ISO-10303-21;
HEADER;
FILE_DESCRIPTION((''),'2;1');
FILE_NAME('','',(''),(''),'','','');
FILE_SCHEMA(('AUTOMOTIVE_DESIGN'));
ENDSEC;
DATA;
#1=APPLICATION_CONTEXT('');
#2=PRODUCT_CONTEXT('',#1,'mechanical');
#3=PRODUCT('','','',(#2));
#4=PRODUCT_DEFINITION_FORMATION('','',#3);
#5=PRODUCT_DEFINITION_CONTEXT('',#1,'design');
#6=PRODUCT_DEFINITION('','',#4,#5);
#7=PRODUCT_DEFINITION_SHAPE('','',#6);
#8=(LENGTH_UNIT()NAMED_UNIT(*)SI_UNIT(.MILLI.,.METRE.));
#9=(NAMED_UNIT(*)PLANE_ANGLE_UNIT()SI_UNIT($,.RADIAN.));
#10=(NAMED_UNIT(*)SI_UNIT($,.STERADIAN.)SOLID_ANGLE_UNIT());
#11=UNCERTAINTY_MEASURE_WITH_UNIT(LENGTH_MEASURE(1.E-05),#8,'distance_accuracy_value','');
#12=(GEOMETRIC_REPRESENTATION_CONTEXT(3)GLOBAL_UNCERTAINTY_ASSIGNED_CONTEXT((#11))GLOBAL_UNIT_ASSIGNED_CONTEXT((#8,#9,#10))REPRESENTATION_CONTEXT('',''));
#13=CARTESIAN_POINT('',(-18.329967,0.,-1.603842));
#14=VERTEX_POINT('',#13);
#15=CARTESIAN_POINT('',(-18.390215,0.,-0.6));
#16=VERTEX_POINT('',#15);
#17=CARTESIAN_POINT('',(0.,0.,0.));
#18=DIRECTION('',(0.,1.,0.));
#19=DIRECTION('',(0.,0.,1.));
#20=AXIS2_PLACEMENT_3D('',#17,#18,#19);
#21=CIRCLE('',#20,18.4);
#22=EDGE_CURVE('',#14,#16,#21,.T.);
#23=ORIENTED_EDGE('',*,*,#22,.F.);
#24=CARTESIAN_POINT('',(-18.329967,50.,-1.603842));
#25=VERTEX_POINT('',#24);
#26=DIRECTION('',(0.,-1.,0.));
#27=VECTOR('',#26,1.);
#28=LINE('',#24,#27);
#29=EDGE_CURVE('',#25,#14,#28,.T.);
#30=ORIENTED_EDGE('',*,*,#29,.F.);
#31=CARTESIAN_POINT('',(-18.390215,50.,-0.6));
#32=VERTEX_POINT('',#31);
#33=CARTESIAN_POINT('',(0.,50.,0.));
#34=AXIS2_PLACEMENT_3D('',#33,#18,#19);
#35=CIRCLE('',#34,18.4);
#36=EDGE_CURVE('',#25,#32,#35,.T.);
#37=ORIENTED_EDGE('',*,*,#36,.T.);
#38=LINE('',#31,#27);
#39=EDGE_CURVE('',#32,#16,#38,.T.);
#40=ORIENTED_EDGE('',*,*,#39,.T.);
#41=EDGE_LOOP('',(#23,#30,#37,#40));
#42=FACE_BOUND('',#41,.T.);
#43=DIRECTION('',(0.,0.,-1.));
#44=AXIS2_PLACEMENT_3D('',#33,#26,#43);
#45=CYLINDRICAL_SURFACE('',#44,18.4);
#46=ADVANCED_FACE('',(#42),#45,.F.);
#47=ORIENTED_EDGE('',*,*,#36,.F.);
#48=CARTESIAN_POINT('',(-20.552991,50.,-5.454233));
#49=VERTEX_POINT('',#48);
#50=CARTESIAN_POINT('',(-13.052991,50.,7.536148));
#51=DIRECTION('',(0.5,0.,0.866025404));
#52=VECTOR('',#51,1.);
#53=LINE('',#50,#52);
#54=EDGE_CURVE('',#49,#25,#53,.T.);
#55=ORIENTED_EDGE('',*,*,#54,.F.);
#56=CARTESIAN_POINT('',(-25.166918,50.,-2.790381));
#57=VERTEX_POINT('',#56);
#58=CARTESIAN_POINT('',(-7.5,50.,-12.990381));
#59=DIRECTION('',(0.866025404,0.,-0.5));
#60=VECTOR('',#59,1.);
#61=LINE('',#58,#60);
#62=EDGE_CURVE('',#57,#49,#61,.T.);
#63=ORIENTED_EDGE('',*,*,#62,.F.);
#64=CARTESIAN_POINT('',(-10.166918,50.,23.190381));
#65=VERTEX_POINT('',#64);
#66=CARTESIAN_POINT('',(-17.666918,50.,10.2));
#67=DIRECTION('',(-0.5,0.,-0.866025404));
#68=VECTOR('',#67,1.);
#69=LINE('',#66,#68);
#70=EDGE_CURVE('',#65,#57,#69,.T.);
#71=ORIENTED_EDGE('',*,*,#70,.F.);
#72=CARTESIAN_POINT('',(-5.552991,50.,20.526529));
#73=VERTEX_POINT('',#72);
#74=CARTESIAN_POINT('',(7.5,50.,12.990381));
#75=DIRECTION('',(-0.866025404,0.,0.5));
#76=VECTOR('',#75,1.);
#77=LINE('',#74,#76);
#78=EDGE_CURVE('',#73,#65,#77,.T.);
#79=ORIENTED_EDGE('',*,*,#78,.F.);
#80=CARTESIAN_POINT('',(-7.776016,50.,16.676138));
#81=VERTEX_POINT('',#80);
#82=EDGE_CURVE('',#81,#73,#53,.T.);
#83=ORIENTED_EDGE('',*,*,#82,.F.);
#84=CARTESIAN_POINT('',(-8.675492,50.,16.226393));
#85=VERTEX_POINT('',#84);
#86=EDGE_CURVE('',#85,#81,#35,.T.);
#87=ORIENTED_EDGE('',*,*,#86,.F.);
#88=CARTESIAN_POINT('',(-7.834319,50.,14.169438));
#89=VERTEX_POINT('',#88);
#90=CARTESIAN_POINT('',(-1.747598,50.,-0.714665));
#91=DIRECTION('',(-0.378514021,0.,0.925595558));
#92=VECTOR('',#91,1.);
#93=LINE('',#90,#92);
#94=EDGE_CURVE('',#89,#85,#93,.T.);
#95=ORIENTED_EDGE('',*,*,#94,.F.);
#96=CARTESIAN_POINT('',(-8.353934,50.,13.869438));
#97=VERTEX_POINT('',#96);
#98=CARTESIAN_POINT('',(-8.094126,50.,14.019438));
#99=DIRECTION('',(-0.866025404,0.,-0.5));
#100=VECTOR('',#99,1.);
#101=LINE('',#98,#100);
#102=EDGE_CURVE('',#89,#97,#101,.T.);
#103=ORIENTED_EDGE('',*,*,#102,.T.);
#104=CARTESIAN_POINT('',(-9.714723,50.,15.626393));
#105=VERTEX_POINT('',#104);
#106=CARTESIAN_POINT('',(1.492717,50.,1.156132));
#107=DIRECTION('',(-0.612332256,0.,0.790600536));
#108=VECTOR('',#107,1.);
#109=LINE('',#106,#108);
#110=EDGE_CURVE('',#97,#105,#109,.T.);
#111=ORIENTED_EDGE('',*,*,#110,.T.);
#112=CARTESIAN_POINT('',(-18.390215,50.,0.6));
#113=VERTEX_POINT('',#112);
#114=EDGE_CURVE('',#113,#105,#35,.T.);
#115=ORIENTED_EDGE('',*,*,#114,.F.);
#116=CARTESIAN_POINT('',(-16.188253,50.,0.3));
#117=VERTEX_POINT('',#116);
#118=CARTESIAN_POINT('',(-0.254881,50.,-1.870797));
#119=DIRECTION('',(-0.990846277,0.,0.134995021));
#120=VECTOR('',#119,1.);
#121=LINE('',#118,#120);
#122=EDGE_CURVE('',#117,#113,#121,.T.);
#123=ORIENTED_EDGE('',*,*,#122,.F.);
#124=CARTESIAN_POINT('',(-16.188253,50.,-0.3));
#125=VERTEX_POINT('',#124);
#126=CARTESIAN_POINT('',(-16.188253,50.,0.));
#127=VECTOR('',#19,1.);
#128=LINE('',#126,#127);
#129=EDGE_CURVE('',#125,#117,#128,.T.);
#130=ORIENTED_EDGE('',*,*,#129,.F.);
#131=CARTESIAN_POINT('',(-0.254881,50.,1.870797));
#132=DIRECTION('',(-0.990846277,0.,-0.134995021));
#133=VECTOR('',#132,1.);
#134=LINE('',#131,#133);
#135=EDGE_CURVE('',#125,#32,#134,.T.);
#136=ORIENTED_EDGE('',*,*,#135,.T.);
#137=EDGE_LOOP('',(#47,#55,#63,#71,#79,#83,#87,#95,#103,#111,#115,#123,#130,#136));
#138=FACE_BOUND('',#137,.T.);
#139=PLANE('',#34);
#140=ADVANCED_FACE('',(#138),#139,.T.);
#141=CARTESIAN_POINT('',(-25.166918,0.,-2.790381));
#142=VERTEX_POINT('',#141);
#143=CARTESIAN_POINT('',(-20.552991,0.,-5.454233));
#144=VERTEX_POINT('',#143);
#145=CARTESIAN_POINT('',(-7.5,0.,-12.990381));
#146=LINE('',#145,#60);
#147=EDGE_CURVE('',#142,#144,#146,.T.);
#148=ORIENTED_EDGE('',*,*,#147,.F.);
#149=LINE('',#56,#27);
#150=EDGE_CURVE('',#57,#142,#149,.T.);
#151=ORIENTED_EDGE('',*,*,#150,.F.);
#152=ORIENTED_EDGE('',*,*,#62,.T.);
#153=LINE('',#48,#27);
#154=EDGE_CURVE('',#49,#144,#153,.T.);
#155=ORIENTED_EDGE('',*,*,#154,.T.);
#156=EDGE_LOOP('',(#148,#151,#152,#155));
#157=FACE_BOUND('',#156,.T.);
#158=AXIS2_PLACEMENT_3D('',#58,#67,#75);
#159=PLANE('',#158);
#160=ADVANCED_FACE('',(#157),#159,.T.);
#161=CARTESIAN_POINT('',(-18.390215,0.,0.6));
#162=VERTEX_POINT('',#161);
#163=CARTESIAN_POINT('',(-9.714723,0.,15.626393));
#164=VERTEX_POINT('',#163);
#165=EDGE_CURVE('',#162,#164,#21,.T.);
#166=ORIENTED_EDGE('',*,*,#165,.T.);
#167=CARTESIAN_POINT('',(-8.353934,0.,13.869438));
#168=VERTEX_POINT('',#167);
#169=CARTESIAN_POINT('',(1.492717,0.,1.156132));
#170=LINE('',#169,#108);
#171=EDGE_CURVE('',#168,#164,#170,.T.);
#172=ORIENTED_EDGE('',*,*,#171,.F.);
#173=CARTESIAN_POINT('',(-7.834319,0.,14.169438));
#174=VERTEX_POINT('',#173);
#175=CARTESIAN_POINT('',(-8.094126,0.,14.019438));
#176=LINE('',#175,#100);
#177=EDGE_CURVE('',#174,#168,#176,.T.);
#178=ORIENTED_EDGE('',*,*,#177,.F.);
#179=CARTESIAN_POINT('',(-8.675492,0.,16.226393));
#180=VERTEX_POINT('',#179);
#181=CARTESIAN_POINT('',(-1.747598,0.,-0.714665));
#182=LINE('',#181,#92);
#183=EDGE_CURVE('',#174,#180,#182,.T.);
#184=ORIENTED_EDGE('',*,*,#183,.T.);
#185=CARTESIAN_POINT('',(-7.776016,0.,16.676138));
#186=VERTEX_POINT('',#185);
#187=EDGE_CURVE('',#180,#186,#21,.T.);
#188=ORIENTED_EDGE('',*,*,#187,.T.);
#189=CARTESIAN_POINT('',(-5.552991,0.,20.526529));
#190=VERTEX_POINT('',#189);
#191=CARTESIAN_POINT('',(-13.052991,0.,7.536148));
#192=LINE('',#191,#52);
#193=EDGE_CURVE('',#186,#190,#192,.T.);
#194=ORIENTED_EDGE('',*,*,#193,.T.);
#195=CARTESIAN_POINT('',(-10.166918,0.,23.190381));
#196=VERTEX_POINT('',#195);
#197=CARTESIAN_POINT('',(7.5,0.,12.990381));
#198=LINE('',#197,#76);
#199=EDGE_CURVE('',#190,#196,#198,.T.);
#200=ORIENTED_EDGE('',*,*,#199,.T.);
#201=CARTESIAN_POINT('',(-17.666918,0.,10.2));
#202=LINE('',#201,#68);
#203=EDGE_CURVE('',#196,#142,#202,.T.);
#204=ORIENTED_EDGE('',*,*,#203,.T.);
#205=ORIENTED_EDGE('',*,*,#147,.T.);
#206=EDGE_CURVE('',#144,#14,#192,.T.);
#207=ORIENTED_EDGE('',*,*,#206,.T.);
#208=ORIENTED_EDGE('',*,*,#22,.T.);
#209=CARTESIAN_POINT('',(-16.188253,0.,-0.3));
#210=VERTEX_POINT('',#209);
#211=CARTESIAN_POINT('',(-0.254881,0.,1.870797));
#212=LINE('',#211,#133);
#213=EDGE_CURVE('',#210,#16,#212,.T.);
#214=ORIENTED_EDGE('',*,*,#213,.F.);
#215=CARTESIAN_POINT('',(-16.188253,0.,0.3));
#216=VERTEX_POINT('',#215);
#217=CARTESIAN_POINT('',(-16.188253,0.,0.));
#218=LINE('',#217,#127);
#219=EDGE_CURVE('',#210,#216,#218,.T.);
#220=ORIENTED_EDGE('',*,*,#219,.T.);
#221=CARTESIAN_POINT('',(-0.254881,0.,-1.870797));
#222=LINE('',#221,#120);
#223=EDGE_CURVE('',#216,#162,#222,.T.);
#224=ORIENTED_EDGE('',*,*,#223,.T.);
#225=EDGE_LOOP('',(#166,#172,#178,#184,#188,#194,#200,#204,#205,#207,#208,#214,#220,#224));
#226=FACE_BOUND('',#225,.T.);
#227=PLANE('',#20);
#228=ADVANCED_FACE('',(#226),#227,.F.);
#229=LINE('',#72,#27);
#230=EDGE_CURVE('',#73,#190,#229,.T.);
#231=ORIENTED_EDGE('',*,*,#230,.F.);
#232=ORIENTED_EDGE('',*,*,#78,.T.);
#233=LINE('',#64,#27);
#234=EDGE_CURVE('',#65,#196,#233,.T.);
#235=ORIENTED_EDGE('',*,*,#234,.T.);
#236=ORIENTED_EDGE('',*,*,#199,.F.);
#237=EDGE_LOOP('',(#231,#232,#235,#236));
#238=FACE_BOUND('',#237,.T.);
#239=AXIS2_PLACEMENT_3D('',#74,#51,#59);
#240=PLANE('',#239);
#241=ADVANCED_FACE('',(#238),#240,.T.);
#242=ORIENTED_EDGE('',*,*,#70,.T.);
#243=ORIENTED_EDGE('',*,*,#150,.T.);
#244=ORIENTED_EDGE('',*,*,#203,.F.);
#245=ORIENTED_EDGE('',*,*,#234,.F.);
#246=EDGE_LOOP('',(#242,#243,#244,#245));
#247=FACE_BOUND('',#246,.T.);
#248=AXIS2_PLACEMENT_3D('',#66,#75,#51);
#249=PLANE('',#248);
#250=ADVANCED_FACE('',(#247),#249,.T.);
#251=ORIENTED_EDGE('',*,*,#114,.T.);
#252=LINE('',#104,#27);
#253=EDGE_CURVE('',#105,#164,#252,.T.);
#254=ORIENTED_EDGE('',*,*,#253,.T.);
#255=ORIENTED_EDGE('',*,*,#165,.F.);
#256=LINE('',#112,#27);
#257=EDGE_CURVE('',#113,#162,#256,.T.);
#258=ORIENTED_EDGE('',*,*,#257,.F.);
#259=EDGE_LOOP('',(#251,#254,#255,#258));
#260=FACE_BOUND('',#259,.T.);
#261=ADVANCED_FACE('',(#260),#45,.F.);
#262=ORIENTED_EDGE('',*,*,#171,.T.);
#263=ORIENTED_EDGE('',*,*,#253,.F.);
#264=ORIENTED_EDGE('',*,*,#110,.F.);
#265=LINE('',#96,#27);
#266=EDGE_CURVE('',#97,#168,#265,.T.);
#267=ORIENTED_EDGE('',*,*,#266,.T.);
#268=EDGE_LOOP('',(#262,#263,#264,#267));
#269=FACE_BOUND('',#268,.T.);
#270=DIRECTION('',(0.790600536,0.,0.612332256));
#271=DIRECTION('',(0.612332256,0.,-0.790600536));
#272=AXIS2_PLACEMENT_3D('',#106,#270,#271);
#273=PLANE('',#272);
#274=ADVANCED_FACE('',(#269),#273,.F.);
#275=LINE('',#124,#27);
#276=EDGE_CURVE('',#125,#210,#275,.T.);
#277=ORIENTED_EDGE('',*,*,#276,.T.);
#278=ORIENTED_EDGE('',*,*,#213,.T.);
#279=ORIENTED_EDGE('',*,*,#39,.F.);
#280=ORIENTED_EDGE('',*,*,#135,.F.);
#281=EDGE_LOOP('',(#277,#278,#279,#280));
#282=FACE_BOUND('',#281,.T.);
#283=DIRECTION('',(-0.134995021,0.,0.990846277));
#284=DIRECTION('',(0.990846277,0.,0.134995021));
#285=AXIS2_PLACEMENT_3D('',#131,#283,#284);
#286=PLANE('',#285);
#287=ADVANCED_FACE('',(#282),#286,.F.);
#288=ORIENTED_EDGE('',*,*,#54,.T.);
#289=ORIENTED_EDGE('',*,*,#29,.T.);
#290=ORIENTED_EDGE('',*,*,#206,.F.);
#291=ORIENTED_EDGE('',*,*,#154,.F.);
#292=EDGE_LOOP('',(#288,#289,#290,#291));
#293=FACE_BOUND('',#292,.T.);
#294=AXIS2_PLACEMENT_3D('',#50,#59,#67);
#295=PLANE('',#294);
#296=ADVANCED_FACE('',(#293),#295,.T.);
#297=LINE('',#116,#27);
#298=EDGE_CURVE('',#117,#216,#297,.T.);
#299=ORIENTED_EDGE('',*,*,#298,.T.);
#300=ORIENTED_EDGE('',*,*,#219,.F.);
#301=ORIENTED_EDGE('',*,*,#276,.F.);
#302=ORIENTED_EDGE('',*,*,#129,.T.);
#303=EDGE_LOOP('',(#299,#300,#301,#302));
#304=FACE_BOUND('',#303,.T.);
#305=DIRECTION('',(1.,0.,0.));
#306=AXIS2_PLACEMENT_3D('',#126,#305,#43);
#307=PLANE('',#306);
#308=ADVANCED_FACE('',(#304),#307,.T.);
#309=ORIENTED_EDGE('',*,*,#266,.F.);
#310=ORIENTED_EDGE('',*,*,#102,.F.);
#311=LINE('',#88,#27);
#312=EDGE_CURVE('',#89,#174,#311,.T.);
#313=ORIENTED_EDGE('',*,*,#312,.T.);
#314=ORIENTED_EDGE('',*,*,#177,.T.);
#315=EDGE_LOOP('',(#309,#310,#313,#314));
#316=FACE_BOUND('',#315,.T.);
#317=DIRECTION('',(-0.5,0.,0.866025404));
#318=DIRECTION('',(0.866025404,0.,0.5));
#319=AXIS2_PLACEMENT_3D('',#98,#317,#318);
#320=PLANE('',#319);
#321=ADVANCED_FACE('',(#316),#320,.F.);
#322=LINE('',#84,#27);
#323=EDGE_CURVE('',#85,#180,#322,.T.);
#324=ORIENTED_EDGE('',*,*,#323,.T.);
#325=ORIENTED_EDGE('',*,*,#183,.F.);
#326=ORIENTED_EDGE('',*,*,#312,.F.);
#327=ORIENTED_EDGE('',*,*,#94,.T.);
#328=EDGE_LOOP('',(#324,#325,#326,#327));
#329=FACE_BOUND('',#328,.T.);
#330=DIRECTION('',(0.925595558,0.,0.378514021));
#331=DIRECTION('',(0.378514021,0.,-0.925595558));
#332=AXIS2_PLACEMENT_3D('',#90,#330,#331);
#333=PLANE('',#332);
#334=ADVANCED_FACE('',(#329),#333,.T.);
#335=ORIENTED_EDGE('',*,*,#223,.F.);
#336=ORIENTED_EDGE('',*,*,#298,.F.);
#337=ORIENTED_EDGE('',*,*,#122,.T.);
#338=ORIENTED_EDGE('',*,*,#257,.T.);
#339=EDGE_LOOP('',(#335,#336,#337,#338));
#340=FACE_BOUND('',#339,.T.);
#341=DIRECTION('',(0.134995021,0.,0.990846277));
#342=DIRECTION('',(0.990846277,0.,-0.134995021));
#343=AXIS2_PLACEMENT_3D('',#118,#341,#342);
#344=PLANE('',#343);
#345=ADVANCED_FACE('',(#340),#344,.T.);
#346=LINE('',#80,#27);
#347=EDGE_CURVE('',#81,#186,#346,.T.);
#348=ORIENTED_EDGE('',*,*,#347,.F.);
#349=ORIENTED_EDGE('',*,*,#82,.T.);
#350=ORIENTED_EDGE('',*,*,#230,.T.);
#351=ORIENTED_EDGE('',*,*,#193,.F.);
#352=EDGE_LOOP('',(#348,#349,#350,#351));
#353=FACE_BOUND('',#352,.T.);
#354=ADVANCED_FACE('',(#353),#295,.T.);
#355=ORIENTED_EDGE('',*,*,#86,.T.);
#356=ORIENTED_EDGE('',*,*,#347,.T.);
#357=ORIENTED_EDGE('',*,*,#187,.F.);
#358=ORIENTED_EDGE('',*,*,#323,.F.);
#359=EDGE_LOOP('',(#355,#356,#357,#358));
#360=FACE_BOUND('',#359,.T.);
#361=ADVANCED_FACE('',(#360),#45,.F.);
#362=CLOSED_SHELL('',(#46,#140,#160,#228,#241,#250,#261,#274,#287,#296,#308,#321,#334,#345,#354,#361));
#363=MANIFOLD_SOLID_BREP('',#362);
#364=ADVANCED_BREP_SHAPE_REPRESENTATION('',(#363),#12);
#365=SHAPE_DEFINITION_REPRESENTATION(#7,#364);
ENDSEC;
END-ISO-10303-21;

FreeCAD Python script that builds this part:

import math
import FreeCAD as App
import Part
import Sketcher
from FreeCAD import Vector
Q = App.Units.Quantity

doc = App.newDocument("Part")
body = doc.addObject("PartDesign::Body", "Body")

# Sketch on XZ plane
sketch1 = body.newObject("Sketcher::SketchObject", "Sketch")
sketch1.AttachmentSupport = (doc.getObject("XZ_Plane"), [""])
sketch1.MapMode = "FlatFace"
sketch1.addGeometry([
    Part.LineSegment(Vector(-16.2, 0.3, 0), Vector(-16.2, -0.3, 0)),  # 0
    Part.LineSegment(Vector(-16.2, -0.3, 0), Vector(-18.4, -0.6, 0)),  # 1
    Part.ArcOfCircle(Part.Circle(Vector(0, 0, 0), Vector(0, 0, 1), 18.4), math.radians(-178.13), math.radians(-175)),  # 2
    Part.LineSegment(Vector(-18.3, -1.6, 0), Vector(-20.6, -5.5, 0)),  # 3
    Part.LineSegment(Vector(-20.6, -5.5, 0), Vector(-25.2, -2.8, 0)),  # 4
    Part.LineSegment(Vector(-25.2, -2.8, 0), Vector(-10.2, 23.2, 0)),  # 5
    Part.LineSegment(Vector(-10.2, 23.2, 0), Vector(-5.6, 20.5, 0)),  # 6
    Part.LineSegment(Vector(-5.6, 20.5, 0), Vector(-7.8, 16.7, 0)),  # 7
    Part.ArcOfCircle(Part.Circle(Vector(0, 0, 0), Vector(0, 0, 1), 18.4), math.radians(115), math.radians(118.13)),  # 8
    Part.LineSegment(Vector(-8.7, 16.2, 0), Vector(-7.8, 14.2, 0)),  # 9
    Part.LineSegment(Vector(-7.8, 14.2, 0), Vector(-8.4, 13.9, 0)),  # 10
    Part.LineSegment(Vector(-8.4, 13.9, 0), Vector(-9.7, 15.6, 0)),  # 11
    Part.ArcOfCircle(Part.Circle(Vector(0, 0, 0), Vector(0, 0, 1), 18.4), math.radians(122), math.radians(178)),  # 12
    Part.LineSegment(Vector(-18.4, 0.6, 0), Vector(-16.2, 0.3, 0)),  # 13
], False)
sketch1.addConstraint([
    Sketcher.Constraint("Coincident", 0, 2, 1, 1),
    Sketcher.Constraint("Coincident", 1, 2, 2, 1),
    Sketcher.Constraint("Coincident", 2, 2, 3, 1),
    Sketcher.Constraint("Coincident", 3, 2, 4, 1),
    Sketcher.Constraint("Coincident", 4, 2, 5, 1),
    Sketcher.Constraint("Coincident", 5, 2, 6, 1),
    Sketcher.Constraint("Coincident", 6, 2, 7, 1),
    Sketcher.Constraint("Coincident", 7, 2, 8, 1),
    Sketcher.Constraint("Coincident", 8, 2, 9, 1),
    Sketcher.Constraint("Coincident", 9, 2, 10, 1),
    Sketcher.Constraint("Coincident", 10, 2, 11, 1),
    Sketcher.Constraint("Coincident", 11, 2, 12, 1),
    Sketcher.Constraint("Coincident", 12, 2, 13, 1),
    Sketcher.Constraint("Coincident", 13, 2, 0, 1),
    Sketcher.Constraint("Vertical", 0),
    Sketcher.Constraint("Coincident", 2, 3, -1, 1),
    Sketcher.Constraint("Coincident", 8, 3, -1, 1),
    Sketcher.Constraint("Coincident", 12, 3, -1, 1),
    Sketcher.Constraint("Equal", 2, 8),
    Sketcher.Constraint("Equal", 8, 12),
    Sketcher.Constraint("Perpendicular", 3, 4),
    Sketcher.Constraint("Perpendicular", 4, 5),
    Sketcher.Constraint("Perpendicular", 5, 6),
    Sketcher.Constraint("Perpendicular", 6, 7),
    Sketcher.Constraint("Vertical", 1, 2, 12, 2),
    Sketcher.Constraint("Equal", 4, 6),
    Sketcher.Constraint("Equal", 3, 7),
    Sketcher.Constraint("Equal", 1, 9),
    Sketcher.Constraint("Equal", 9, 11),
    Sketcher.Constraint("Equal", 11, 13),
    Sketcher.Constraint("Radius", 2, 18.4),
    Sketcher.Constraint("Angle", 3, Q("-120 deg")),
    Sketcher.Constraint("Angle", 10, Q("-150 deg")),
    Sketcher.Constraint("Distance", 5, 30.0),
    Sketcher.Constraint("DistanceY", 0, 2, 0, 1, 0.6),
    Sketcher.Constraint("Distance", 10, 0.6),
    Sketcher.Constraint("DistanceY", 1, 2, -1, 1, 0.6),
    Sketcher.Constraint("DistanceY", 11, 2, 8, 2, 0.6),
    Sketcher.Constraint("DistanceX", 8, 2, 6, 2, 3.122501),
    Sketcher.Constraint("DistanceY", 9, 2, 7, 2, 2.5067),
    Sketcher.Constraint("DistanceX", 5, 2, 9, 2, 2.332599),
    Sketcher.Constraint("Distance", 3, 4.446049),
])
pad1 = body.newObject("PartDesign::Pad", "Pad")
pad1.Profile = sketch1
pad1.Length = 50
pad1.Reversed = True

doc.recompute()
